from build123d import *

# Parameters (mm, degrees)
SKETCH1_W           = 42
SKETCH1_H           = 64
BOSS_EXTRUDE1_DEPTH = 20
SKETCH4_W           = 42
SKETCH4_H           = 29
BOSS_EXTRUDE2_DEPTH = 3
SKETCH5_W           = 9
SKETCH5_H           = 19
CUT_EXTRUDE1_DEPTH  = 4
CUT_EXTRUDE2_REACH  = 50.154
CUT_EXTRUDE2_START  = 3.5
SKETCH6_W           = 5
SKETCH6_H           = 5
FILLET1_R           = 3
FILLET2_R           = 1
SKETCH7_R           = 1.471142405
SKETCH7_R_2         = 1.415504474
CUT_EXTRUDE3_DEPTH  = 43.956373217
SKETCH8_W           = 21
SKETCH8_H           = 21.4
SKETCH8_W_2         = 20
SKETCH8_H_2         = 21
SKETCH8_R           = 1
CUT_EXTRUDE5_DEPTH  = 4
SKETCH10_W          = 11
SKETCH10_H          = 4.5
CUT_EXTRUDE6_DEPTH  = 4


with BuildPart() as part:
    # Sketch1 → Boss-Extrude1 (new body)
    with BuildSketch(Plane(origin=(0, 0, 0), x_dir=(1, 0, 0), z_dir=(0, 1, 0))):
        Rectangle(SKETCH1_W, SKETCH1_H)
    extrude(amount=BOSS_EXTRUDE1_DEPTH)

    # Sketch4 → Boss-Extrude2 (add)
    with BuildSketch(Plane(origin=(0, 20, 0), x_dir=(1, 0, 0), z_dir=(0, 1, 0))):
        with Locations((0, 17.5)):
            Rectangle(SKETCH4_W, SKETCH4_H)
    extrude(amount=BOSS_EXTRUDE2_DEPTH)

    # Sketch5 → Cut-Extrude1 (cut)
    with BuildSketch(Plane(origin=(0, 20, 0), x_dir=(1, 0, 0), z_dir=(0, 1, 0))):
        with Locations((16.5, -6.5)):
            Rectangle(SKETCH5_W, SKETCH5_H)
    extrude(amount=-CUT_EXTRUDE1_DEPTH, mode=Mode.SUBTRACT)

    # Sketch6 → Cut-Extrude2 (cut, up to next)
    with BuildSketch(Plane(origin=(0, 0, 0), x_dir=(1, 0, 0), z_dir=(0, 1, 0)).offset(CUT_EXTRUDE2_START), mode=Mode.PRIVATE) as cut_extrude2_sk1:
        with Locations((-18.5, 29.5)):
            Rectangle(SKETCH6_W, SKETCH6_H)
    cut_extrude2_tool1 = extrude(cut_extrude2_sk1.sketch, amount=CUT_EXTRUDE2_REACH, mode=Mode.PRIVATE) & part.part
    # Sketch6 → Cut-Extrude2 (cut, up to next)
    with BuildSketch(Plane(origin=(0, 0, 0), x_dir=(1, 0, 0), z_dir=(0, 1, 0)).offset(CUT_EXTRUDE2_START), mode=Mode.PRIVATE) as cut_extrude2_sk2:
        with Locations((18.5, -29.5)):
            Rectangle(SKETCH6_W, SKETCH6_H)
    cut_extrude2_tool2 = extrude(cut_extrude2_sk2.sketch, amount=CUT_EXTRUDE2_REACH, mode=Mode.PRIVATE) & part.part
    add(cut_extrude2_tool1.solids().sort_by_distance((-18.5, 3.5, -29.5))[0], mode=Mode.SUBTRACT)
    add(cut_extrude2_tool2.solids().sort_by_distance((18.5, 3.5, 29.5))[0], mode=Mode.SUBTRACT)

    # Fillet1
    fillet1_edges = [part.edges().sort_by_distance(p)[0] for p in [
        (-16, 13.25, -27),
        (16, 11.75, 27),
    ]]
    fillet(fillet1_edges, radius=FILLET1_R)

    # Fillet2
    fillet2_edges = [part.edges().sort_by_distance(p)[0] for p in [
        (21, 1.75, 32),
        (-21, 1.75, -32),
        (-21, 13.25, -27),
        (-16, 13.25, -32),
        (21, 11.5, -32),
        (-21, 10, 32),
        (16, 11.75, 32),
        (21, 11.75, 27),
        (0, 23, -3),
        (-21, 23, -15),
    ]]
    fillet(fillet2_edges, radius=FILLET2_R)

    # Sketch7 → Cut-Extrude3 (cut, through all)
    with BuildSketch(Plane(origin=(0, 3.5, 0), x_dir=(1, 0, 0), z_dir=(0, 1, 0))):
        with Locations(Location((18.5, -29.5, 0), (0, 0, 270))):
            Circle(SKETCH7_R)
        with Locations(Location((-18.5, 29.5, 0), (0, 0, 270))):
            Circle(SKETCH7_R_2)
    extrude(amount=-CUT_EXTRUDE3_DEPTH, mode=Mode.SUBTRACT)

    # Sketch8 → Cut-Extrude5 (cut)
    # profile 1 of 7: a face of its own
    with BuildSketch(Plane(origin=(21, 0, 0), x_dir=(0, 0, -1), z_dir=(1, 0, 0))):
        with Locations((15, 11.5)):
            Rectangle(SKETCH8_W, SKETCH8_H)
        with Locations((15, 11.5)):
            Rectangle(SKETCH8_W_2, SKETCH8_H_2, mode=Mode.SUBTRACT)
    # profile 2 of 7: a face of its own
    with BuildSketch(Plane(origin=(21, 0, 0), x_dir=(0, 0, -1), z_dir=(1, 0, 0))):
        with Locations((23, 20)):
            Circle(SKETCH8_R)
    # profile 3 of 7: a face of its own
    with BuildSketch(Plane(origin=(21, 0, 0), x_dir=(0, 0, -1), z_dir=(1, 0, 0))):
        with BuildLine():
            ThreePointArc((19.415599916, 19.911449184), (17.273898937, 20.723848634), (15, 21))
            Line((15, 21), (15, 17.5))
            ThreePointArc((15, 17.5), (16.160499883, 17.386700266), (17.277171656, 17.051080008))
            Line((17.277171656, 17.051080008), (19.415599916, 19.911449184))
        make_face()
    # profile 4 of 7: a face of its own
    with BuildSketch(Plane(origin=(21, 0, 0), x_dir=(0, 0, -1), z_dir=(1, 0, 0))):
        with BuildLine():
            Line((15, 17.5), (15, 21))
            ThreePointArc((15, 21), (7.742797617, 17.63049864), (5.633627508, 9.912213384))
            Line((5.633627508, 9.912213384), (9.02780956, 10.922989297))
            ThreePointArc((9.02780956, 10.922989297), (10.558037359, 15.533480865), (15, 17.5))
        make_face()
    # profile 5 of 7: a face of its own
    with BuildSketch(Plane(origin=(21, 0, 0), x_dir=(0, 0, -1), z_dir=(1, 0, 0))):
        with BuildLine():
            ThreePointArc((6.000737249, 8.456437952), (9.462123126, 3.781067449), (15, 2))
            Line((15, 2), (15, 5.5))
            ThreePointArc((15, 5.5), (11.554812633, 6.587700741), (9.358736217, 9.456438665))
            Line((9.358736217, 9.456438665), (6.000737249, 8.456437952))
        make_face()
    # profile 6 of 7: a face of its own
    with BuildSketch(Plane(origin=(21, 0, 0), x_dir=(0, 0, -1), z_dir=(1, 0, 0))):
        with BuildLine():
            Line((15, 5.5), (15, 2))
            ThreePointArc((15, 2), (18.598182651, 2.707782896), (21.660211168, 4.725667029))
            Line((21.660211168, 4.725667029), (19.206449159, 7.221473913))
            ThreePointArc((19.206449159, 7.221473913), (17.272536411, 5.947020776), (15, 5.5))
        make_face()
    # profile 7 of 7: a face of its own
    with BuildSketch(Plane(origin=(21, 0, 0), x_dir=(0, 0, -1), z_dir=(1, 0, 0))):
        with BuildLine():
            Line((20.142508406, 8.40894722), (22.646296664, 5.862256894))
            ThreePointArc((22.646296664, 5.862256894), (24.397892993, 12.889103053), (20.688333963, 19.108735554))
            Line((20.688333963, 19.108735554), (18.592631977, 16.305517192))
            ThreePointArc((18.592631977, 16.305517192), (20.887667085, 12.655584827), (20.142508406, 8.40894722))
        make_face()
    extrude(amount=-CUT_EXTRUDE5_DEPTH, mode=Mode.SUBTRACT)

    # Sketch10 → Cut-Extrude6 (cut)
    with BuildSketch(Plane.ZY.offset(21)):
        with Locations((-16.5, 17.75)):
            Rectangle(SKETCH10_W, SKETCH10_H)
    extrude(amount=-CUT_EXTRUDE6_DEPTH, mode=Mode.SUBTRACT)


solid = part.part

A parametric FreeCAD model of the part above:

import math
import FreeCAD as App
import Part
import Sketcher
Q = App.Units.Quantity


def edges_at(feature, points):
    """Names of the edges that pass closest to the given points."""
    edges = feature.Shape.Edges
    near = lambda p: min(range(len(edges)), key=lambda i: edges[i].distToShape(Part.Vertex(*p))[0])
    return sorted({f"Edge{near(p) + 1}" for p in points})


def add_polygon(sketch, points):
    """Adds a closed chain of lines whose ends are joined by coincident constraints."""
    first, n = sketch.GeometryCount, len(points)
    for a, b in zip(points, points[1:] + points[:1]):
        sketch.addGeometry(Part.LineSegment(App.Vector(*a, 0), App.Vector(*b, 0)), False)
    for i in range(n):
        sketch.addConstraint(Sketcher.Constraint("Coincident", first + i, 2, first + (i + 1) % n, 1))

doc = App.newDocument("Part")
params = doc.addObject("Spreadsheet::Sheet", "Params")
for row, (alias, value) in enumerate([
    ("sketch1_width", "42 mm"),
    ("sketch1_height", "64 mm"),
    ("pad1_length", "20 mm"),
    ("sketch2_width", "42 mm"),
    ("sketch2_height", "29 mm"),
    ("pad2_length", "3 mm"),
    ("sketch3_width", "9 mm"),
    ("sketch3_height", "19 mm"),
    ("pocket1_length", "4 mm"),
    ("sketch4_width", "5 mm"),
    ("sketch5_width", "5 mm"),
    ("fillet_radius", "3 mm"),
    ("fillet2_radius", "1 mm"),
    ("sketch7_diameter", "2 mm"),
    ("sketch7_radius", "6 mm"),
    ("sketch7_radius2", "9.5 mm"),
    ("sketch7_width", "21 mm"),
    ("sketch7_height", "20 mm"),
    ("pocket5_length", "4 mm"),
    ("sketch8_height", "11 mm"),
    ("sketch8_width", "4.5 mm"),
    ("pocket6_length", "4 mm"),
], start=1):
    params.set(f"A{row}", alias)
    params.set(f"B{row}", "=" + value)
    params.setAlias(f"B{row}", alias)

body = doc.addObject("PartDesign::Body", "Body")

# Sketch on XZ plane
sketch1 = doc.addObject("Sketcher::SketchObject", "Sketch")
body.addObject(sketch1)
sketch1.AttachmentSupport = (doc.XZ_Plane, [""])
sketch1.MapMode = "FlatFace"
add_polygon(sketch1, [(-21, -32), (-21, 32), (21, 32), (21, -32)])  # lines 0-3
sketch1.addConstraint([
    Sketcher.Constraint("Vertical", 0),
    Sketcher.Constraint("Horizontal", 1),
    Sketcher.Constraint("Vertical", 2),
    Sketcher.Constraint("Horizontal", 3),
    Sketcher.Constraint("Symmetric", 0, 2, 2, 2, -1, 1),
    Sketcher.Constraint("DistanceX", 1, 1, 1, 2, Q("42 mm")),
    Sketcher.Constraint("DistanceY", 0, 1, 0, 2, Q("64 mm")),
])
sketch1.setExpression("Constraints[9]", "Params.sketch1_width")
sketch1.setExpression("Constraints[10]", "Params.sketch1_height")
pad1 = doc.addObject("PartDesign::Pad", "Pad")
body.addObject(pad1)
pad1.Profile = sketch1
pad1.setExpression("Length", "Params.pad1_length")
pad1.Reversed = True

# Sketch on XZ plane
sketch2 = doc.addObject("Sketcher::SketchObject", "Sketch001")
body.addObject(sketch2)
sketch2.AttachmentSupport = (doc.XZ_Plane, [""])
sketch2.MapMode = "FlatFace"
sketch2.AttachmentOffset = App.Placement(App.Vector(0, 0, -20), App.Rotation())
add_polygon(sketch2, [(-21, -32), (-21, -3), (21, -3), (21, -32)])  # lines 0-3
sketch2.addConstraint([
    Sketcher.Constraint("Vertical", 0),
    Sketcher.Constraint("Horizontal", 1),
    Sketcher.Constraint("Vertical", 2),
    Sketcher.Constraint("Horizontal", 3),
    Sketcher.Constraint("DistanceX", 1, 1, 1, 2, Q("42 mm")),
    Sketcher.Constraint("DistanceY", 0, 1, 0, 2, Q("29 mm")),
    Sketcher.Constraint("DistanceX", 0, 2, -1, 1, Q("21 mm")),
    Sketcher.Constraint("DistanceY", 0, 2, -1, 1, Q("3 mm")),
])
sketch2.setExpression("Constraints[8]", "Params.sketch2_width")
sketch2.setExpression("Constraints[9]", "Params.sketch2_height")
pad2 = doc.addObject("PartDesign::Pad", "Pad001")
body.addObject(pad2)
pad2.Profile = sketch2
pad2.setExpression("Length", "Params.pad2_length")
pad2.Reversed = True

# Sketch on XZ plane
sketch3 = doc.addObject("Sketcher::SketchObject", "Sketch002")
body.addObject(sketch3)
sketch3.AttachmentSupport = (doc.XZ_Plane, [""])
sketch3.MapMode = "FlatFace"
sketch3.AttachmentOffset = App.Placement(App.Vector(0, 0, -20), App.Rotation())
add_polygon(sketch3, [(12, -3), (12, 16), (21, 16), (21, -3)])  # lines 0-3
sketch3.addConstraint([
    Sketcher.Constraint("Vertical", 0),
    Sketcher.Constraint("Horizontal", 1),
    Sketcher.Constraint("Vertical", 2),
    Sketcher.Constraint("Horizontal", 3),
    Sketcher.Constraint("DistanceX", 1, 1, 1, 2, Q("9 mm")),
    Sketcher.Constraint("DistanceY", 0, 1, 0, 2, Q("19 mm")),
    Sketcher.Constraint("DistanceX", -1, 1, 0, 2, Q("12 mm")),
    Sketcher.Constraint("DistanceY", -1, 1, 0, 2, Q("16 mm")),
])
sketch3.setExpression("Constraints[8]", "Params.sketch3_width")
sketch3.setExpression("Constraints[9]", "Params.sketch3_height")
pocket1 = doc.addObject("PartDesign::Pocket", "Pocket")
body.addObject(pocket1)
pocket1.Profile = sketch3
pocket1.setExpression("Length", "Params.pocket1_length")
pocket1.Reversed = True

# Sketch on XZ plane
sketch4 = doc.addObject("Sketcher::SketchObject", "Sketch003")
body.addObject(sketch4)
sketch4.AttachmentSupport = (doc.XZ_Plane, [""])
sketch4.MapMode = "FlatFace"
sketch4.AttachmentOffset = App.Placement(App.Vector(0, 0, -3.5), App.Rotation())
add_polygon(sketch4, [(-21, -32), (-21, -27), (-16, -27), (-16, -32)])  # lines 0-3
sketch4.addConstraint([
    Sketcher.Constraint("Vertical", 0),
    Sketcher.Constraint("Horizontal", 1),
    Sketcher.Constraint("Vertical", 2),
    Sketcher.Constraint("Horizontal", 3),
    Sketcher.Constraint("Equal", 3, 0),
    Sketcher.Constraint("DistanceX", 1, 1, 1, 2, Q("5 mm")),
    Sketcher.Constraint("DistanceX", 0, 2, -1, 1, Q("21 mm")),
    Sketcher.Constraint("DistanceY", 0, 2, -1, 1, Q("27 mm")),
])
sketch4.setExpression("Constraints[9]", "Params.sketch4_width")
pocket2 = doc.addObject("PartDesign::Pocket", "Pocket001")
body.addObject(pocket2)
pocket2.Profile = sketch4
pocket2.Type = "UpToFirst"

# Sketch on XZ plane
sketch5 = doc.addObject("Sketcher::SketchObject", "Sketch004")
body.addObject(sketch5)
sketch5.AttachmentSupport = (doc.XZ_Plane, [""])
sketch5.MapMode = "FlatFace"
sketch5.AttachmentOffset = App.Placement(App.Vector(0, 0, -3.5), App.Rotation())
add_polygon(sketch5, [(16, 27), (16, 32), (21, 32), (21, 27)])  # lines 0-3
sketch5.addConstraint([
    Sketcher.Constraint("Vertical", 0),
    Sketcher.Constraint("Horizontal", 1),
    Sketcher.Constraint("Vertical", 2),
    Sketcher.Constraint("Horizontal", 3),
    Sketcher.Constraint("Equal", 3, 0),
    Sketcher.Constraint("DistanceX", 1, 1, 1, 2, Q("5 mm")),
    Sketcher.Constraint("DistanceX", -1, 1, 0, 2, Q("16 mm")),
    Sketcher.Constraint("DistanceY", -1, 1, 0, 2, Q("32 mm")),
])
sketch5.setExpression("Constraints[9]", "Params.sketch5_width")
pocket3 = doc.addObject("PartDesign::Pocket", "Pocket002")
body.addObject(pocket3)
pocket3.Profile = sketch5
pocket3.Type = "UpToFirst"
doc.recompute()

fillet = doc.addObject("PartDesign::Fillet", "Fillet")
body.addObject(fillet)
fillet.Base = (pocket3, edges_at(pocket3, [(-16, 13.25, -27), (16, 11.75, 27)]))
fillet.setExpression("Radius", "Params.fillet_radius")
doc.recompute()

fillet2 = doc.addObject("PartDesign::Fillet", "Fillet001")
body.addObject(fillet2)
fillet2.Base = (fillet, edges_at(fillet, [
    (21, 1.75, 32),
    (-21, 1.75, -32),
    (-21, 13.25, -27),
    (-16, 13.25, -32),
    (21, 11.5, -32),
    (-21, 10, 32),
    (16, 11.75, 32),
    (21, 11.75, 27),
    (0, 23, -3),
    (-21, 23, -15),
]))
fillet2.setExpression("Radius", "Params.fillet2_radius")

# Sketch on XZ plane
sketch6 = doc.addObject("Sketcher::SketchObject", "Sketch005")
body.addObject(sketch6)
sketch6.AttachmentSupport = (doc.XZ_Plane, [""])
sketch6.MapMode = "FlatFace"
sketch6.AttachmentOffset = App.Placement(App.Vector(0, 0, -3.5), App.Rotation())
sketch6.addGeometry([
    Part.Circle(App.Vector(18.5, 29.5, 0), App.Vector(0, 0, 1), 1.5),
    Part.Circle(App.Vector(-18.5, -29.5, 0), App.Vector(0, 0, 1), 1.4),
], False)
sketch6.addConstraint([
    Sketcher.Constraint("Symmetric", 0, 3, 1, 3, -1, 1),
    Sketcher.Constraint("DistanceX", 1, 3, 0, 3, Q("37 mm")),
    Sketcher.Constraint("DistanceY", 1, 3, 0, 3, Q("59 mm")),
    Sketcher.Constraint("Diameter", 1, Q("2.831009 mm")),
    Sketcher.Constraint("Diameter", 0, Q("2.942285 mm")),
])
pocket4 = doc.addObject("PartDesign::Pocket", "Pocket003")
body.addObject(pocket4)
pocket4.Profile = sketch6
pocket4.Type = "ThroughAll"
pocket4.Reversed = True

# Sketch on YZ plane
sketch7 = doc.addObject("Sketcher::SketchObject", "Sketch006")
body.addObject(sketch7)
sketch7.AttachmentSupport = (doc.YZ_Plane, [""])
sketch7.MapMode = "FlatFace"
sketch7.AttachmentOffset = App.Placement(App.Vector(0, 0, 21), App.Rotation())
add_polygon(sketch7, [(22.2, -4.5), (0.8, -4.5), (0.8, -25.5), (22.2, -25.5)])  # lines 0-3
add_polygon(sketch7, [(1, -25), (1, -5), (22, -5), (22, -25)])  # lines 4-7
sketch7.addGeometry(Part.Circle(App.Vector(20, -23, 0), App.Vector(0, 0, 1), 1), False)  # 8
sketch7.addGeometry(Part.ArcOfCircle(Part.Circle(App.Vector(11.5, -15, 0), App.Vector(0, 0, 1), 9.5), math.radians(-28), math.radians(0)), False)  # 9
sketch7.addGeometry(Part.ArcOfCircle(Part.Circle(App.Vector(11.5, -15, 0), App.Vector(0, 0, 1), 9.5), math.radians(0), math.radians(100)), False)  # 10
sketch7.addGeometry(Part.LineSegment(App.Vector(9.9, -5.6, 0), App.Vector(10.9, -9, 0)), False)  # 11
sketch7.addGeometry(Part.ArcOfCircle(Part.Circle(App.Vector(11.5, -15, 0), App.Vector(0, 0, 1), 6), math.radians(0), math.radians(96)), False)  # 12
sketch7.addGeometry(Part.ArcOfCircle(Part.Circle(App.Vector(11.5, -15, 0), App.Vector(0, 0, 1), 6), math.radians(-22), math.radians(0)), False)  # 13
sketch7.addGeometry(Part.LineSegment(App.Vector(17.1, -17.3, 0), App.Vector(19.9, -19.4, 0)), False)  # 14
sketch7.addGeometry(Part.ArcOfCircle(Part.Circle(App.Vector(11.5, -15, 0), App.Vector(0, 0, 1), 9.5), math.radians(109), math.radians(180)), False)  # 15
sketch7.addGeometry(Part.ArcOfCircle(Part.Circle(App.Vector(11.5, -15, 0), App.Vector(0, 0, 1), 9.5), math.radians(-180), math.radians(-135)), False)  # 16
sketch7.addGeometry(Part.LineSegment(App.Vector(4.7, -21.7, 0), App.Vector(7.2, -19.2, 0)), False)  # 17
sketch7.addGeometry(Part.ArcOfCircle(Part.Circle(App.Vector(11.5, -15, 0), App.Vector(0, 0, 1), 6), math.radians(180), math.radians(225)), False)  # 18
sketch7.addGeometry(Part.ArcOfCircle(Part.Circle(App.Vector(11.5, -15, 0), App.Vector(0, 0, 1), 6), math.radians(110), math.radians(180)), False)  # 19
sketch7.addGeometry(Part.LineSegment(App.Vector(9.5, -9.4, 0), App.Vector(8.5, -6, 0)), False)  # 20
sketch7.addGeometry(Part.LineSegment(App.Vector(8.4, -20.1, 0), App.Vector(5.9, -22.6, 0)), False)  # 21
sketch7.addGeometry(Part.ArcOfCircle(Part.Circle(App.Vector(11.5, -15, 0), App.Vector(0, 0, 1), 9.5), math.radians(-126), math.radians(-37)), False)  # 22
sketch7.addGeometry(Part.LineSegment(App.Vector(19.1, -20.7, 0), App.Vector(16.3, -18.6, 0)), False)  # 23
sketch7.addGeometry(Part.ArcOfCircle(Part.Circle(App.Vector(11.5, -15, 0), App.Vector(0, 0, 1), 6), math.radians(-121), math.radians(-37)), False)  # 24
sketch7.addConstraint([
    Sketcher.Constraint("Tangent", 9, 2, 10, 1),
    Sketcher.Constraint("Coincident", 10, 2, 11, 1),
    Sketcher.Constraint("Coincident", 11, 2, 12, 2),
    Sketcher.Constraint("Tangent", 12, 1, 13, 2),
    Sketcher.Constraint("Coincident", 13, 1, 14, 1),
    Sketcher.Constraint("Coincident", 14, 2, 9, 1),
    Sketcher.Constraint("Tangent", 15, 2, 16, 1),
    Sketcher.Constraint("Coincident", 16, 2, 17, 1),
    Sketcher.Constraint("Coincident", 17, 2, 18, 2),
    Sketcher.Constraint("Tangent", 18, 1, 19, 2),
    Sketcher.Constraint("Coincident", 19, 1, 20, 1),
    Sketcher.Constraint("Coincident", 20, 2, 15, 1),
    Sketcher.Constraint("Coincident", 21, 2, 22, 1),
    Sketcher.Constraint("Coincident", 22, 2, 23, 1),
    Sketcher.Constraint("Coincident", 23, 2, 24, 2),
    Sketcher.Constraint("Coincident", 24, 1, 21, 1),
    Sketcher.Constraint("Horizontal", 0),
    Sketcher.Constraint("Vertical", 1),
    Sketcher.Constraint("Horizontal", 2),
    Sketcher.Constraint("Vertical", 3),
    Sketcher.Constraint("Vertical", 4),
    Sketcher.Constraint("Horizontal", 5),
    Sketcher.Constraint("Vertical", 6),
    Sketcher.Constraint("Horizontal", 7),
    Sketcher.Constraint("Coincident", 12, 3, 9, 3),
    Sketcher.Constraint("Coincident", 15, 3, 9, 3),
    Sketcher.Constraint("Coincident", 18, 3, 9, 3),
    Sketcher.Constraint("Coincident", 22, 3, 9, 3),
    Sketcher.Constraint("Coincident", 24, 3, 9, 3),
    Sketcher.Constraint("Equal", 9, 10),
    Sketcher.Constraint("Equal", 12, 13),
    Sketcher.Constraint("Equal", 10, 15),
    Sketcher.Constraint("Equal", 15, 16),
    Sketcher.Constraint("Equal", 13, 18),
    Sketcher.Constraint("Equal", 18, 19),
    Sketcher.Constraint("Equal", 16, 22),
    Sketcher.Constraint("Equal", 19, 24),
    Sketcher.Constraint("Parallel", 11, 20),
    Sketcher.Constraint("Parallel", 17, 21),
    Sketcher.Constraint("Parallel", 14, 23),
    Sketcher.Constraint("Horizontal", 24, 3, 9, 2),
    Sketcher.Constraint("Horizontal", 9, 2, 12, 1),
    Sketcher.Constraint("Horizontal", 12, 1, 15, 2),
    Sketcher.Constraint("Horizontal", 15, 2, 18, 1),
    Sketcher.Constraint("Equal", 7, 1),
    Sketcher.Constraint("Equal", 14, 21),
    Sketcher.Constraint("Diameter", 8, Q("2 mm")),
    Sketcher.Constraint("Radius", 12, Q("6 mm")),
    Sketcher.Constraint("Radius", 9, Q("9.5 mm")),
    Sketcher.Constraint("DistanceX", 5, 1, 5, 2, Q("21 mm")),
    Sketcher.Constraint("DistanceY", 4, 1, 4, 2, Q("20 mm")),
    Sketcher.Constraint("DistanceX", 0, 2, 0, 1, Q("21.4 mm")),
    Sketcher.Constraint("DistanceX", -1, 1, 8, 3, Q("20 mm")),
    Sketcher.Constraint("DistanceY", 8, 3, -1, 1, Q("23 mm")),
    Sketcher.Constraint("DistanceY", 9, 3, -1, 1, Q("15 mm")),
    Sketcher.Constraint("DistanceX", -1, 1, 4, 2, Q("1 mm")),
    Sketcher.Constraint("DistanceY", 4, 2, -1, 1, Q("5 mm")),
    Sketcher.Constraint("DistanceX", -1, 1, 9, 2, Q("21 mm")),
    Sketcher.Constraint("DistanceX", 20, 2, 19, 1, Q("1.000001 mm")),
    Sketcher.Constraint("DistanceX", -1, 1, 0, 2, Q("0.8 mm")),
    Sketcher.Constraint("DistanceY", 0, 2, -1, 1, Q("4.5 mm")),
    Sketcher.Constraint("DistanceY", 19, 1, 20, 2, Q("3.357999 mm")),
    Sketcher.Constraint("DistanceY", 14, 2, -1, 1, Q("19.4156 mm")),
    Sketcher.Constraint("DistanceY", 22, 2, 23, 2, Q("2.095702 mm")),
    Sketcher.Constraint("Distance", 11, Q("3.541488 mm")),
    Sketcher.Constraint("DistanceY", 16, 2, -1, 1, Q("21.660211 mm")),
    Sketcher.Constraint("DistanceY", 17, 2, -1, 1, Q("19.206449 mm")),
    Sketcher.Constraint("DistanceY", 23, 2, -1, 1, Q("18.592632 mm")),
])
sketch7.setExpression("Constraints[54]", "Params.sketch7_diameter")
sketch7.setExpression("Constraints[55]", "Params.sketch7_radius")
sketch7.setExpression("Constraints[56]", "Params.sketch7_radius2")
sketch7.setExpression("Constraints[57]", "Params.sketch7_width")
sketch7.setExpression("Constraints[58]", "Params.sketch7_height")
pocket5 = doc.addObject("PartDesign::Pocket", "Pocket004")
body.addObject(pocket5)
pocket5.Profile = sketch7
pocket5.setExpression("Length", "Params.pocket5_length")

# Sketch on YZ plane
sketch8 = doc.addObject("Sketcher::SketchObject", "Sketch007")
body.addObject(sketch8)
sketch8.AttachmentSupport = (doc.YZ_Plane, [""])
sketch8.MapMode = "FlatFace"
sketch8.AttachmentOffset = App.Placement(App.Vector(0, 0, -21), App.Rotation())
add_polygon(sketch8, [(20, -22), (15.5, -22), (15.5, -11), (20, -11)])  # lines 0-3
sketch8.addConstraint([
    Sketcher.Constraint("Horizontal", 0),
    Sketcher.Constraint("Vertical", 1),
    Sketcher.Constraint("Horizontal", 2),
    Sketcher.Constraint("Vertical", 3),
    Sketcher.Constraint("DistanceY", 1, 1, 1, 2, Q("11 mm")),
    Sketcher.Constraint("DistanceX", 0, 2, 0, 1, Q("4.5 mm")),
    Sketcher.Constraint("DistanceY", 0, 2, -1, 1, Q("22 mm")),
    Sketcher.Constraint("DistanceX", -1, 1, 2, 2, Q("20 mm")),
])
sketch8.setExpression("Constraints[8]", "Params.sketch8_height")
sketch8.setExpression("Constraints[9]", "Params.sketch8_width")
pocket6 = doc.addObject("PartDesign::Pocket", "Pocket005")
body.addObject(pocket6)
pocket6.Profile = sketch8
pocket6.setExpression("Length", "Params.pocket6_length")
pocket6.Reversed = True

doc.recompute()
